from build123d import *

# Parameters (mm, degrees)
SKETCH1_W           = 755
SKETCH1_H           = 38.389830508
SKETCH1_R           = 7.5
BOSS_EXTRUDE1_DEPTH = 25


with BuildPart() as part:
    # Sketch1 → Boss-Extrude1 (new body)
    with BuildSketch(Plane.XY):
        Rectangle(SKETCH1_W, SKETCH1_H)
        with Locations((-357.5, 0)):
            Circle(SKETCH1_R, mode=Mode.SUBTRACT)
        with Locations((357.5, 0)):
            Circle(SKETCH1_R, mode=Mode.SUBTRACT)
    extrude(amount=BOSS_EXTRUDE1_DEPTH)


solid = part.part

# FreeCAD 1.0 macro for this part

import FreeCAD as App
import Part
import Sketcher

doc = App.newDocument("Part")
params = doc.addObject("Spreadsheet::Sheet", "Params")
for row, (alias, value) in enumerate([
    ("sketch1_diameter", "15 mm"),
    ("sketch1_width", "755 mm"),
    ("pad1_length", "25 mm"),
], start=1):
    params.set(f"A{row}", alias)
    params.set(f"B{row}", "=" + value)
    params.setAlias(f"B{row}", alias)

body = doc.addObject("PartDesign::Body", "Body")

# Sketch on XY plane
sketch1 = body.newObject("Sketcher::SketchObject", "Sketch")
sketch1.AttachmentSupport = (doc.getObject("XY_Plane"), [""])
sketch1.MapMode = "FlatFace"
sketch1.addGeometry([
    Part.LineSegment(App.Vector(-378, 19, 0), App.Vector(-378, -19, 0)),  # 0
    Part.LineSegment(App.Vector(-378, -19, 0), App.Vector(378, -19, 0)),  # 1
    Part.LineSegment(App.Vector(378, -19, 0), App.Vector(378, 19, 0)),  # 2
    Part.LineSegment(App.Vector(378, 19, 0), App.Vector(-378, 19, 0)),  # 3
    Part.Circle(App.Vector(-358, 0, 0), App.Vector(0, 0, 1), 8),  # 4
    Part.Circle(App.Vector(358, 0, 0), App.Vector(0, 0, 1), 8),  # 5
], False)
sketch1.addConstraint([
    Sketcher.Constraint("Coincident", 0, 2, 1, 1),
    Sketcher.Constraint("Coincident", 1, 2, 2, 1),
    Sketcher.Constraint("Coincident", 2, 2, 3, 1),
    Sketcher.Constraint("Coincident", 3, 2, 0, 1),
    Sketcher.Constraint("Vertical", 0),
    Sketcher.Constraint("Horizontal", 1),
    Sketcher.Constraint("Vertical", 2),
    Sketcher.Constraint("Horizontal", 3),
    Sketcher.Constraint("Equal", 4, 5),
    Sketcher.Constraint("Symmetric", 4, 3, 5, 3, -1, 1),
    Sketcher.Constraint("Symmetric", 0, 2, 2, 2, -1, 1),
    Sketcher.Constraint("PointOnObject", 4, 3, -1),
    Sketcher.Constraint("Diameter", 4, 15.0),
    Sketcher.Constraint("DistanceX", 1, 1, 1, 2, 755.0),
    Sketcher.Constraint("DistanceX", 4, 3, 5, 3, 715.0),
    Sketcher.Constraint("DistanceY", 0, 2, 0, 1, 38.389831),
])
sketch1.setExpression("Constraints[12]", "Params.sketch1_diameter")
sketch1.setExpression("Constraints[13]", "Params.sketch1_width")
pad1 = body.newObject("PartDesign::Pad", "Pad")
pad1.Profile = sketch1
pad1.setExpression("Length", "Params.pad1_length")

doc.recompute()
